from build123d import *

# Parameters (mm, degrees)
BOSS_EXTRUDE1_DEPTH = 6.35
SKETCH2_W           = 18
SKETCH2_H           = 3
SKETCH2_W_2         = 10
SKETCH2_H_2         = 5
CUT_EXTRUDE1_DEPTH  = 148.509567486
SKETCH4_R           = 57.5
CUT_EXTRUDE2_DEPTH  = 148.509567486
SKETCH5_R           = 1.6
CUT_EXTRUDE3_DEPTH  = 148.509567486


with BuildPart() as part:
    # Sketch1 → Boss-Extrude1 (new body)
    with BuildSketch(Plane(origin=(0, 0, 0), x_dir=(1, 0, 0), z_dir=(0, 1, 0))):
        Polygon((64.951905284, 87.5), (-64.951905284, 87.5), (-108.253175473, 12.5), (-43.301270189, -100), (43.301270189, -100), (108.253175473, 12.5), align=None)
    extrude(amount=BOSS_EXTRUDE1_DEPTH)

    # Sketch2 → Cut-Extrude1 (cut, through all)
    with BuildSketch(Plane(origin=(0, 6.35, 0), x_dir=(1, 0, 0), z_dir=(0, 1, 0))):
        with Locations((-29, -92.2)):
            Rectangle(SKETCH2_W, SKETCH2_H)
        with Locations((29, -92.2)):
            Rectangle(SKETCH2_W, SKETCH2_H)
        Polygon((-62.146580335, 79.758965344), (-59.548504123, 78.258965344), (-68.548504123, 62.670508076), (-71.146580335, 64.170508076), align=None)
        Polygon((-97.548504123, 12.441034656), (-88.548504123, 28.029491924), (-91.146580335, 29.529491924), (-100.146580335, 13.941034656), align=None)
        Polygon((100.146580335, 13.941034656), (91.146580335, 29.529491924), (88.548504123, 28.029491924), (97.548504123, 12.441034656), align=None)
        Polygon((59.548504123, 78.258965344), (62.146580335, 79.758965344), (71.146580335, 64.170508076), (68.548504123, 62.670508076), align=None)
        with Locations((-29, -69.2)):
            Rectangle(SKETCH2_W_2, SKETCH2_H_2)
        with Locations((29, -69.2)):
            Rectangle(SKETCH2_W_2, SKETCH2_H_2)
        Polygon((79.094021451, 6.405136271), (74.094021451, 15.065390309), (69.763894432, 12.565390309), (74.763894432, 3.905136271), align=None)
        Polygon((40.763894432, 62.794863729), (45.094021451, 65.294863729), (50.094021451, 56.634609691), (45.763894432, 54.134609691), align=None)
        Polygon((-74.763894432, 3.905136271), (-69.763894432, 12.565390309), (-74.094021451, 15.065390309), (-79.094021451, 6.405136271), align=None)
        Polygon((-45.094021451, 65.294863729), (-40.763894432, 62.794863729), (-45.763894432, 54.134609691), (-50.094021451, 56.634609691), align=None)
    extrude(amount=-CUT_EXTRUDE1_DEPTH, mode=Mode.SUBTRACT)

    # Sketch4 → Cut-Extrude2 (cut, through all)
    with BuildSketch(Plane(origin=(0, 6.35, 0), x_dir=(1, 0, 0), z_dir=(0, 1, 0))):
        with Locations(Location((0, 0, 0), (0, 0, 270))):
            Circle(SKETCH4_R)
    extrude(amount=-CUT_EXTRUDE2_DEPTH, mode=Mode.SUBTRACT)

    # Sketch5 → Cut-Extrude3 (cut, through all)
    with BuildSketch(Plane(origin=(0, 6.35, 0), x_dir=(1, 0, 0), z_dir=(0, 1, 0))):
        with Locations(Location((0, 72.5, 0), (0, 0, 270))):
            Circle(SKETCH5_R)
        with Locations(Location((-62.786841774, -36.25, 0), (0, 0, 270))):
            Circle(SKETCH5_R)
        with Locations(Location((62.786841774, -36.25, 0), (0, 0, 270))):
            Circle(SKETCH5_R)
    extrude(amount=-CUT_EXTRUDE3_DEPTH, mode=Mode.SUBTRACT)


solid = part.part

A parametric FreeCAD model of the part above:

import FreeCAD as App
import Part
import Sketcher
Q = App.Units.Quantity

doc = App.newDocument("Part")
body = doc.addObject("PartDesign::Body", "Body")

# Sketch on XZ plane
sketch1 = doc.addObject("Sketcher::SketchObject", "Sketch")
body.addObject(sketch1)
sketch1.AttachmentSupport = (doc.XZ_Plane, [""])
sketch1.MapMode = "FlatFace"
sketch1.addGeometry([
    Part.LineSegment(App.Vector(64.951905, -87.5, 0), App.Vector(-64.951905, -87.5, 0)),  # 0
    Part.LineSegment(App.Vector(-64.951905, -87.5, 0), App.Vector(-108.253175, -12.5, 0)),  # 1
    Part.LineSegment(App.Vector(-108.253175, -12.5, 0), App.Vector(-43.30127, 100, 0)),  # 2
    Part.LineSegment(App.Vector(-43.30127, 100, 0), App.Vector(43.30127, 100, 0)),  # 3
    Part.LineSegment(App.Vector(43.30127, 100, 0), App.Vector(108.253175, -12.5, 0)),  # 4
    Part.LineSegment(App.Vector(108.253175, -12.5, 0), App.Vector(64.951905, -87.5, 0)),  # 5
], False)
sketch1.addConstraint([
    Sketcher.Constraint("Coincident", 0, 2, 1, 1),
    Sketcher.Constraint("Coincident", 1, 2, 2, 1),
    Sketcher.Constraint("Coincident", 2, 2, 3, 1),
    Sketcher.Constraint("Coincident", 3, 2, 4, 1),
    Sketcher.Constraint("Coincident", 4, 2, 5, 1),
    Sketcher.Constraint("Coincident", 5, 2, 0, 1),
    Sketcher.Constraint("Horizontal", 0),
    Sketcher.Constraint("Horizontal", 3),
    Sketcher.Constraint("Symmetric", 1, 2, 4, 2, -2),
    Sketcher.Constraint("Parallel", 1, 4),
    Sketcher.Constraint("Parallel", 2, 5),
    Sketcher.Constraint("Equal", 2, 4),
    Sketcher.Constraint("Angle", 1, Q("120 deg")),
    Sketcher.Constraint("DistanceY", -1, 1, 2, 2, 100.0),
    Sketcher.Constraint("DistanceY", 0, 2, 1, 2, 75.0),
    Sketcher.Constraint("DistanceY", 0, 2, -1, 1, 87.5),
    Sketcher.Constraint("DistanceX", 0, 2, 0, 1, 129.903811),
])
pad1 = doc.addObject("PartDesign::Pad", "Pad")
body.addObject(pad1)
pad1.Profile = sketch1
pad1.Length = 6.35
pad1.Reversed = True

# Sketch on XZ plane
sketch2 = doc.addObject("Sketcher::SketchObject", "Sketch001")
body.addObject(sketch2)
sketch2.AttachmentSupport = (doc.XZ_Plane, [""])
sketch2.MapMode = "FlatFace"
sketch2.AttachmentOffset = App.Placement(App.Vector(0, 0, -6.35), App.Rotation())
sketch2.addGeometry([
    Part.LineSegment(App.Vector(-38, 90.7, 0), App.Vector(-38, 93.7, 0)),  # 0
    Part.LineSegment(App.Vector(-38, 93.7, 0), App.Vector(-20, 93.7, 0)),  # 1
    Part.LineSegment(App.Vector(-20, 93.7, 0), App.Vector(-20, 90.7, 0)),  # 2
    Part.LineSegment(App.Vector(-20, 90.7, 0), App.Vector(-38, 90.7, 0)),  # 3
    Part.LineSegment(App.Vector(20, 90.7, 0), App.Vector(20, 93.7, 0)),  # 4
    Part.LineSegment(App.Vector(20, 93.7, 0), App.Vector(38, 93.7, 0)),  # 5
    Part.LineSegment(App.Vector(38, 93.7, 0), App.Vector(38, 90.7, 0)),  # 6
    Part.LineSegment(App.Vector(38, 90.7, 0), App.Vector(20, 90.7, 0)),  # 7
    Part.LineSegment(App.Vector(-59.548504, -78.258965, 0), App.Vector(-62.14658, -79.758965, 0)),  # 8
    Part.LineSegment(App.Vector(-62.14658, -79.758965, 0), App.Vector(-71.14658, -64.170508, 0)),  # 9
    Part.LineSegment(App.Vector(-71.14658, -64.170508, 0), App.Vector(-68.548504, -62.670508, 0)),  # 10
    Part.LineSegment(App.Vector(-68.548504, -62.670508, 0), App.Vector(-59.548504, -78.258965, 0)),  # 11
    Part.LineSegment(App.Vector(-97.548504, -12.441035, 0), App.Vector(-88.548504, -28.029492, 0)),  # 12
    Part.LineSegment(App.Vector(-88.548504, -28.029492, 0), App.Vector(-91.14658, -29.529492, 0)),  # 13
    Part.LineSegment(App.Vector(-91.14658, -29.529492, 0), App.Vector(-100.14658, -13.941035, 0)),  # 14
    Part.LineSegment(App.Vector(-100.14658, -13.941035, 0), App.Vector(-97.548504, -12.441035, 0)),  # 15
    Part.LineSegment(App.Vector(100.14658, -13.941035, 0), App.Vector(91.14658, -29.529492, 0)),  # 16
    Part.LineSegment(App.Vector(91.14658, -29.529492, 0), App.Vector(88.548504, -28.029492, 0)),  # 17
    Part.LineSegment(App.Vector(88.548504, -28.029492, 0), App.Vector(97.548504, -12.441035, 0)),  # 18
    Part.LineSegment(App.Vector(97.548504, -12.441035, 0), App.Vector(100.14658, -13.941035, 0)),  # 19
    Part.LineSegment(App.Vector(62.14658, -79.758965, 0), App.Vector(59.548504, -78.258965, 0)),  # 20
    Part.LineSegment(App.Vector(59.548504, -78.258965, 0), App.Vector(68.548504, -62.670508, 0)),  # 21
    Part.LineSegment(App.Vector(68.548504, -62.670508, 0), App.Vector(71.14658, -64.170508, 0)),  # 22
    Part.LineSegment(App.Vector(71.14658, -64.170508, 0), App.Vector(62.14658, -79.758965, 0)),  # 23
    Part.LineSegment(App.Vector(-34, 66.7, 0), App.Vector(-34, 71.7, 0)),  # 24
    Part.LineSegment(App.Vector(-34, 71.7, 0), App.Vector(-24, 71.7, 0)),  # 25
    Part.LineSegment(App.Vector(-24, 71.7, 0), App.Vector(-24, 66.7, 0)),  # 26
    Part.LineSegment(App.Vector(-24, 66.7, 0), App.Vector(-34, 66.7, 0)),  # 27
    Part.LineSegment(App.Vector(24, 66.7, 0), App.Vector(24, 71.7, 0)),  # 28
    Part.LineSegment(App.Vector(24, 71.7, 0), App.Vector(34, 71.7, 0)),  # 29
    Part.LineSegment(App.Vector(34, 71.7, 0), App.Vector(34, 66.7, 0)),  # 30
    Part.LineSegment(App.Vector(34, 66.7, 0), App.Vector(24, 66.7, 0)),  # 31
    Part.LineSegment(App.Vector(79.094021, -6.405136, 0), App.Vector(74.094021, -15.06539, 0)),  # 32
    Part.LineSegment(App.Vector(74.094021, -15.06539, 0), App.Vector(69.763894, -12.56539, 0)),  # 33
    Part.LineSegment(App.Vector(69.763894, -12.56539, 0), App.Vector(74.763894, -3.905136, 0)),  # 34
    Part.LineSegment(App.Vector(74.763894, -3.905136, 0), App.Vector(79.094021, -6.405136, 0)),  # 35
    Part.LineSegment(App.Vector(45.094021, -65.294864, 0), App.Vector(40.763894, -62.794864, 0)),  # 36
    Part.LineSegment(App.Vector(40.763894, -62.794864, 0), App.Vector(45.763894, -54.13461, 0)),  # 37
    Part.LineSegment(App.Vector(45.763894, -54.13461, 0), App.Vector(50.094021, -56.63461, 0)),  # 38
    Part.LineSegment(App.Vector(50.094021, -56.63461, 0), App.Vector(45.094021, -65.294864, 0)),  # 39
    Part.LineSegment(App.Vector(-74.763894, -3.905136, 0), App.Vector(-69.763894, -12.56539, 0)),  # 40
    Part.LineSegment(App.Vector(-69.763894, -12.56539, 0), App.Vector(-74.094021, -15.06539, 0)),  # 41
    Part.LineSegment(App.Vector(-74.094021, -15.06539, 0), App.Vector(-79.094021, -6.405136, 0)),  # 42
    Part.LineSegment(App.Vector(-79.094021, -6.405136, 0), App.Vector(-74.763894, -3.905136, 0)),  # 43
    Part.LineSegment(App.Vector(-40.763894, -62.794864, 0), App.Vector(-45.094021, -65.294864, 0)),  # 44
    Part.LineSegment(App.Vector(-45.094021, -65.294864, 0), App.Vector(-50.094021, -56.63461, 0)),  # 45
    Part.LineSegment(App.Vector(-50.094021, -56.63461, 0), App.Vector(-45.763894, -54.13461, 0)),  # 46
    Part.LineSegment(App.Vector(-45.763894, -54.13461, 0), App.Vector(-40.763894, -62.794864, 0)),  # 47
], False)
sketch2.addConstraint([
    Sketcher.Constraint("Coincident", 0, 2, 1, 1),
    Sketcher.Constraint("Coincident", 1, 2, 2, 1),
    Sketcher.Constraint("Coincident", 2, 2, 3, 1),
    Sketcher.Constraint("Coincident", 3, 2, 0, 1),
    Sketcher.Constraint("Coincident", 4, 2, 5, 1),
    Sketcher.Constraint("Coincident", 5, 2, 6, 1),
    Sketcher.Constraint("Coincident", 6, 2, 7, 1),
    Sketcher.Constraint("Coincident", 7, 2, 4, 1),
    Sketcher.Constraint("Coincident", 8, 2, 9, 1),
    Sketcher.Constraint("Coincident", 9, 2, 10, 1),
    Sketcher.Constraint("Coincident", 10, 2, 11, 1),
    Sketcher.Constraint("Coincident", 11, 2, 8, 1),
    Sketcher.Constraint("Coincident", 12, 2, 13, 1),
    Sketcher.Constraint("Coincident", 13, 2, 14, 1),
    Sketcher.Constraint("Coincident", 14, 2, 15, 1),
    Sketcher.Constraint("Coincident", 15, 2, 12, 1),
    Sketcher.Constraint("Coincident", 16, 2, 17, 1),
    Sketcher.Constraint("Coincident", 17, 2, 18, 1),
    Sketcher.Constraint("Coincident", 18, 2, 19, 1),
    Sketcher.Constraint("Coincident", 19, 2, 16, 1),
    Sketcher.Constraint("Coincident", 20, 2, 21, 1),
    Sketcher.Constraint("Coincident", 21, 2, 22, 1),
    Sketcher.Constraint("Coincident", 22, 2, 23, 1),
    Sketcher.Constraint("Coincident", 23, 2, 20, 1),
    Sketcher.Constraint("Coincident", 24, 2, 25, 1),
    Sketcher.Constraint("Coincident", 25, 2, 26, 1),
    Sketcher.Constraint("Coincident", 26, 2, 27, 1),
    Sketcher.Constraint("Coincident", 27, 2, 24, 1),
    Sketcher.Constraint("Coincident", 28, 2, 29, 1),
    Sketcher.Constraint("Coincident", 29, 2, 30, 1),
    Sketcher.Constraint("Coincident", 30, 2, 31, 1),
    Sketcher.Constraint("Coincident", 31, 2, 28, 1),
    Sketcher.Constraint("Coincident", 32, 2, 33, 1),
    Sketcher.Constraint("Coincident", 33, 2, 34, 1),
    Sketcher.Constraint("Coincident", 34, 2, 35, 1),
    Sketcher.Constraint("Coincident", 35, 2, 32, 1),
    Sketcher.Constraint("Coincident", 36, 2, 37, 1),
    Sketcher.Constraint("Coincident", 37, 2, 38, 1),
    Sketcher.Constraint("Coincident", 38, 2, 39, 1),
    Sketcher.Constraint("Coincident", 39, 2, 36, 1),
    Sketcher.Constraint("Coincident", 40, 2, 41, 1),
    Sketcher.Constraint("Coincident", 41, 2, 42, 1),
    Sketcher.Constraint("Coincident", 42, 2, 43, 1),
    Sketcher.Constraint("Coincident", 43, 2, 40, 1),
    Sketcher.Constraint("Coincident", 44, 2, 45, 1),
    Sketcher.Constraint("Coincident", 45, 2, 46, 1),
    Sketcher.Constraint("Coincident", 46, 2, 47, 1),
    Sketcher.Constraint("Coincident", 47, 2, 44, 1),
    Sketcher.Constraint("Vertical", 0),
    Sketcher.Constraint("Horizontal", 1),
    Sketcher.Constraint("Vertical", 2),
    Sketcher.Constraint("Horizontal", 3),
    Sketcher.Constraint("Vertical", 4),
    Sketcher.Constraint("Horizontal", 5),
    Sketcher.Constraint("Vertical", 6),
    Sketcher.Constraint("Horizontal", 7),
    Sketcher.Constraint("Vertical", 24),
    Sketcher.Constraint("Horizontal", 25),
    Sketcher.Constraint("Vertical", 26),
    Sketcher.Constraint("Horizontal", 27),
    Sketcher.Constraint("Vertical", 28),
    Sketcher.Constraint("Horizontal", 29),
    Sketcher.Constraint("Vertical", 30),
    Sketcher.Constraint("Horizontal", 31),
    Sketcher.Constraint("Symmetric", 1, 2, 4, 2, -2),
    Sketcher.Constraint("Symmetric", 3, 2, 6, 2, -2),
    Sketcher.Constraint("Symmetric", 13, 2, 16, 2, -2),
    Sketcher.Constraint("Symmetric", 12, 2, 17, 2, -2),
    Sketcher.Constraint("Symmetric", 15, 2, 18, 2, -2),
    Sketcher.Constraint("Symmetric", 14, 2, 19, 2, -2),
    Sketcher.Constraint("Symmetric", 11, 2, 20, 2, -2),
    Sketcher.Constraint("Symmetric", 10, 2, 21, 2, -2),
    Sketcher.Constraint("Symmetric", 9, 2, 22, 2, -2),
    Sketcher.Constraint("Symmetric", 8, 2, 23, 2, -2),
    Sketcher.Constraint("Symmetric", 25, 2, 28, 2, -2),
    Sketcher.Constraint("Symmetric", 27, 2, 30, 2, -2),
    Sketcher.Constraint("Symmetric", 33, 2, 40, 2, -2),
    Sketcher.Constraint("Symmetric", 32, 2, 41, 2, -2),
    Sketcher.Constraint("Symmetric", 35, 2, 42, 2, -2),
    Sketcher.Constraint("Symmetric", 34, 2, 43, 2, -2),
    Sketcher.Constraint("Symmetric", 39, 2, 44, 2, -2),
    Sketcher.Constraint("Symmetric", 38, 2, 45, 2, -2),
    Sketcher.Constraint("Symmetric", 37, 2, 46, 2, -2),
    Sketcher.Constraint("Symmetric", 36, 2, 47, 2, -2),
    Sketcher.Constraint("Perpendicular", 8, 9),
    Sketcher.Constraint("Perpendicular", 9, 10),
    Sketcher.Constraint("Perpendicular", 10, 11),
    Sketcher.Constraint("Parallel", 11, 12),
    Sketcher.Constraint("Perpendicular", 12, 13),
    Sketcher.Constraint("Perpendicular", 13, 14),
    Sketcher.Constraint("Perpendicular", 14, 15),
    Sketcher.Constraint("Parallel", 23, 32),
    Sketcher.Constraint("Perpendicular", 32, 33),
    Sketcher.Constraint("Perpendicular", 33, 34),
    Sketcher.Constraint("Perpendicular", 34, 35),
    Sketcher.Constraint("Parallel", 35, 36),
    Sketcher.Constraint("Perpendicular", 36, 37),
    Sketcher.Constraint("Perpendicular", 37, 38),
    Sketcher.Constraint("Perpendicular", 38, 39),
    Sketcher.Constraint("Equal", 11, 12),
    Sketcher.Constraint("Equal", 10, 13),
    Sketcher.Constraint("Equal", 35, 36),
    Sketcher.Constraint("Equal", 34, 37),
    Sketcher.Constraint("DistanceX", 1, 1, 1, 2, 18.0),
    Sketcher.Constraint("DistanceX", 25, 1, 25, 2, 10.0),
    Sketcher.Constraint("DistanceY", 0, 1, 0, 2, 3.0),
    Sketcher.Constraint("DistanceY", 24, 1, 24, 2, 5.0),
    Sketcher.Constraint("Angle", 8, Q("-150 deg")),
    Sketcher.Constraint("Distance", 8, 3.0),
    Sketcher.Constraint("Distance", 9, 18.0),
    Sketcher.Constraint("Distance", 32, 10.0),
    Sketcher.Constraint("Distance", 33, 5.0),
    Sketcher.Constraint("DistanceX", 0, 2, -1, 1, 38.0),
    Sketcher.Constraint("DistanceX", 24, 2, -1, 1, 34.0),
    Sketcher.Constraint("DistanceX", 12, 2, 10, 2, 20.0),
    Sketcher.Constraint("DistanceY", 24, 2, 3, 2, 19.0),
    Sketcher.Constraint("DistanceX", 36, 2, 33, 2, 29.0),
    Sketcher.Constraint("DistanceY", -1, 1, 0, 2, 93.7),
    Sketcher.Constraint("DistanceY", 17, 2, 32, 2, 12.964102),
    Sketcher.Constraint("DistanceY", 20, 2, 36, 2, 15.464102),
    Sketcher.Constraint("DistanceX", 8, 2, -1, 1, 62.14658),
    Sketcher.Constraint("DistanceY", 9, 2, -1, 1, 64.170508),
    Sketcher.Constraint("DistanceY", 12, 2, -1, 1, 28.029492),
    Sketcher.Constraint("DistanceX", -1, 1, 32, 2, 74.094021),
])
pocket1 = doc.addObject("PartDesign::Pocket", "Pocket")
body.addObject(pocket1)
pocket1.Profile = sketch2
pocket1.Type = "ThroughAll"
pocket1.Reversed = True

# Sketch on XZ plane
sketch3 = doc.addObject("Sketcher::SketchObject", "Sketch002")
body.addObject(sketch3)
sketch3.AttachmentSupport = (doc.XZ_Plane, [""])
sketch3.MapMode = "FlatFace"
sketch3.AttachmentOffset = App.Placement(App.Vector(0, 0, -6.35), App.Rotation())
sketch3.addGeometry(Part.Circle(App.Vector(0, 0, 0), App.Vector(0, 0, 1), 57.5), False)
sketch3.addConstraint([
    Sketcher.Constraint("Coincident", 0, 3, -1, 1),
    Sketcher.Constraint("Diameter", 0, 115.0),
])
pocket2 = doc.addObject("PartDesign::Pocket", "Pocket001")
body.addObject(pocket2)
pocket2.Profile = sketch3
pocket2.Type = "ThroughAll"
pocket2.Reversed = True

# Sketch on XZ plane
sketch4 = doc.addObject("Sketcher::SketchObject", "Sketch003")
body.addObject(sketch4)
sketch4.AttachmentSupport = (doc.XZ_Plane, [""])
sketch4.MapMode = "FlatFace"
sketch4.AttachmentOffset = App.Placement(App.Vector(0, 0, -6.35), App.Rotation())
sketch4.addGeometry([
    Part.Circle(App.Vector(0, -72.5, 0), App.Vector(0, 0, 1), 1.6),
    Part.Circle(App.Vector(-62.786842, 36.25, 0), App.Vector(0, 0, 1), 1.6),
    Part.Circle(App.Vector(62.786842, 36.25, 0), App.Vector(0, 0, 1), 1.6),
], False)
sketch4.addConstraint([
    Sketcher.Constraint("Equal", 0, 1),
    Sketcher.Constraint("Equal", 1, 2),
    Sketcher.Constraint("Symmetric", 1, 3, 2, 3, -2),
    Sketcher.Constraint("PointOnObject", 0, 3, -2),
    Sketcher.Constraint("Diameter", 0, 3.2),
    Sketcher.Constraint("DistanceY", 0, 3, -1, 1, 72.5),
    Sketcher.Constraint("DistanceY", -1, 1, 1, 3, 36.25),
    Sketcher.Constraint("DistanceX", 1, 3, -1, 1, 62.786842),
])
pocket3 = doc.addObject("PartDesign::Pocket", "Pocket002")
body.addObject(pocket3)
pocket3.Profile = sketch4
pocket3.Type = "ThroughAll"
pocket3.Reversed = True

doc.recompute()
